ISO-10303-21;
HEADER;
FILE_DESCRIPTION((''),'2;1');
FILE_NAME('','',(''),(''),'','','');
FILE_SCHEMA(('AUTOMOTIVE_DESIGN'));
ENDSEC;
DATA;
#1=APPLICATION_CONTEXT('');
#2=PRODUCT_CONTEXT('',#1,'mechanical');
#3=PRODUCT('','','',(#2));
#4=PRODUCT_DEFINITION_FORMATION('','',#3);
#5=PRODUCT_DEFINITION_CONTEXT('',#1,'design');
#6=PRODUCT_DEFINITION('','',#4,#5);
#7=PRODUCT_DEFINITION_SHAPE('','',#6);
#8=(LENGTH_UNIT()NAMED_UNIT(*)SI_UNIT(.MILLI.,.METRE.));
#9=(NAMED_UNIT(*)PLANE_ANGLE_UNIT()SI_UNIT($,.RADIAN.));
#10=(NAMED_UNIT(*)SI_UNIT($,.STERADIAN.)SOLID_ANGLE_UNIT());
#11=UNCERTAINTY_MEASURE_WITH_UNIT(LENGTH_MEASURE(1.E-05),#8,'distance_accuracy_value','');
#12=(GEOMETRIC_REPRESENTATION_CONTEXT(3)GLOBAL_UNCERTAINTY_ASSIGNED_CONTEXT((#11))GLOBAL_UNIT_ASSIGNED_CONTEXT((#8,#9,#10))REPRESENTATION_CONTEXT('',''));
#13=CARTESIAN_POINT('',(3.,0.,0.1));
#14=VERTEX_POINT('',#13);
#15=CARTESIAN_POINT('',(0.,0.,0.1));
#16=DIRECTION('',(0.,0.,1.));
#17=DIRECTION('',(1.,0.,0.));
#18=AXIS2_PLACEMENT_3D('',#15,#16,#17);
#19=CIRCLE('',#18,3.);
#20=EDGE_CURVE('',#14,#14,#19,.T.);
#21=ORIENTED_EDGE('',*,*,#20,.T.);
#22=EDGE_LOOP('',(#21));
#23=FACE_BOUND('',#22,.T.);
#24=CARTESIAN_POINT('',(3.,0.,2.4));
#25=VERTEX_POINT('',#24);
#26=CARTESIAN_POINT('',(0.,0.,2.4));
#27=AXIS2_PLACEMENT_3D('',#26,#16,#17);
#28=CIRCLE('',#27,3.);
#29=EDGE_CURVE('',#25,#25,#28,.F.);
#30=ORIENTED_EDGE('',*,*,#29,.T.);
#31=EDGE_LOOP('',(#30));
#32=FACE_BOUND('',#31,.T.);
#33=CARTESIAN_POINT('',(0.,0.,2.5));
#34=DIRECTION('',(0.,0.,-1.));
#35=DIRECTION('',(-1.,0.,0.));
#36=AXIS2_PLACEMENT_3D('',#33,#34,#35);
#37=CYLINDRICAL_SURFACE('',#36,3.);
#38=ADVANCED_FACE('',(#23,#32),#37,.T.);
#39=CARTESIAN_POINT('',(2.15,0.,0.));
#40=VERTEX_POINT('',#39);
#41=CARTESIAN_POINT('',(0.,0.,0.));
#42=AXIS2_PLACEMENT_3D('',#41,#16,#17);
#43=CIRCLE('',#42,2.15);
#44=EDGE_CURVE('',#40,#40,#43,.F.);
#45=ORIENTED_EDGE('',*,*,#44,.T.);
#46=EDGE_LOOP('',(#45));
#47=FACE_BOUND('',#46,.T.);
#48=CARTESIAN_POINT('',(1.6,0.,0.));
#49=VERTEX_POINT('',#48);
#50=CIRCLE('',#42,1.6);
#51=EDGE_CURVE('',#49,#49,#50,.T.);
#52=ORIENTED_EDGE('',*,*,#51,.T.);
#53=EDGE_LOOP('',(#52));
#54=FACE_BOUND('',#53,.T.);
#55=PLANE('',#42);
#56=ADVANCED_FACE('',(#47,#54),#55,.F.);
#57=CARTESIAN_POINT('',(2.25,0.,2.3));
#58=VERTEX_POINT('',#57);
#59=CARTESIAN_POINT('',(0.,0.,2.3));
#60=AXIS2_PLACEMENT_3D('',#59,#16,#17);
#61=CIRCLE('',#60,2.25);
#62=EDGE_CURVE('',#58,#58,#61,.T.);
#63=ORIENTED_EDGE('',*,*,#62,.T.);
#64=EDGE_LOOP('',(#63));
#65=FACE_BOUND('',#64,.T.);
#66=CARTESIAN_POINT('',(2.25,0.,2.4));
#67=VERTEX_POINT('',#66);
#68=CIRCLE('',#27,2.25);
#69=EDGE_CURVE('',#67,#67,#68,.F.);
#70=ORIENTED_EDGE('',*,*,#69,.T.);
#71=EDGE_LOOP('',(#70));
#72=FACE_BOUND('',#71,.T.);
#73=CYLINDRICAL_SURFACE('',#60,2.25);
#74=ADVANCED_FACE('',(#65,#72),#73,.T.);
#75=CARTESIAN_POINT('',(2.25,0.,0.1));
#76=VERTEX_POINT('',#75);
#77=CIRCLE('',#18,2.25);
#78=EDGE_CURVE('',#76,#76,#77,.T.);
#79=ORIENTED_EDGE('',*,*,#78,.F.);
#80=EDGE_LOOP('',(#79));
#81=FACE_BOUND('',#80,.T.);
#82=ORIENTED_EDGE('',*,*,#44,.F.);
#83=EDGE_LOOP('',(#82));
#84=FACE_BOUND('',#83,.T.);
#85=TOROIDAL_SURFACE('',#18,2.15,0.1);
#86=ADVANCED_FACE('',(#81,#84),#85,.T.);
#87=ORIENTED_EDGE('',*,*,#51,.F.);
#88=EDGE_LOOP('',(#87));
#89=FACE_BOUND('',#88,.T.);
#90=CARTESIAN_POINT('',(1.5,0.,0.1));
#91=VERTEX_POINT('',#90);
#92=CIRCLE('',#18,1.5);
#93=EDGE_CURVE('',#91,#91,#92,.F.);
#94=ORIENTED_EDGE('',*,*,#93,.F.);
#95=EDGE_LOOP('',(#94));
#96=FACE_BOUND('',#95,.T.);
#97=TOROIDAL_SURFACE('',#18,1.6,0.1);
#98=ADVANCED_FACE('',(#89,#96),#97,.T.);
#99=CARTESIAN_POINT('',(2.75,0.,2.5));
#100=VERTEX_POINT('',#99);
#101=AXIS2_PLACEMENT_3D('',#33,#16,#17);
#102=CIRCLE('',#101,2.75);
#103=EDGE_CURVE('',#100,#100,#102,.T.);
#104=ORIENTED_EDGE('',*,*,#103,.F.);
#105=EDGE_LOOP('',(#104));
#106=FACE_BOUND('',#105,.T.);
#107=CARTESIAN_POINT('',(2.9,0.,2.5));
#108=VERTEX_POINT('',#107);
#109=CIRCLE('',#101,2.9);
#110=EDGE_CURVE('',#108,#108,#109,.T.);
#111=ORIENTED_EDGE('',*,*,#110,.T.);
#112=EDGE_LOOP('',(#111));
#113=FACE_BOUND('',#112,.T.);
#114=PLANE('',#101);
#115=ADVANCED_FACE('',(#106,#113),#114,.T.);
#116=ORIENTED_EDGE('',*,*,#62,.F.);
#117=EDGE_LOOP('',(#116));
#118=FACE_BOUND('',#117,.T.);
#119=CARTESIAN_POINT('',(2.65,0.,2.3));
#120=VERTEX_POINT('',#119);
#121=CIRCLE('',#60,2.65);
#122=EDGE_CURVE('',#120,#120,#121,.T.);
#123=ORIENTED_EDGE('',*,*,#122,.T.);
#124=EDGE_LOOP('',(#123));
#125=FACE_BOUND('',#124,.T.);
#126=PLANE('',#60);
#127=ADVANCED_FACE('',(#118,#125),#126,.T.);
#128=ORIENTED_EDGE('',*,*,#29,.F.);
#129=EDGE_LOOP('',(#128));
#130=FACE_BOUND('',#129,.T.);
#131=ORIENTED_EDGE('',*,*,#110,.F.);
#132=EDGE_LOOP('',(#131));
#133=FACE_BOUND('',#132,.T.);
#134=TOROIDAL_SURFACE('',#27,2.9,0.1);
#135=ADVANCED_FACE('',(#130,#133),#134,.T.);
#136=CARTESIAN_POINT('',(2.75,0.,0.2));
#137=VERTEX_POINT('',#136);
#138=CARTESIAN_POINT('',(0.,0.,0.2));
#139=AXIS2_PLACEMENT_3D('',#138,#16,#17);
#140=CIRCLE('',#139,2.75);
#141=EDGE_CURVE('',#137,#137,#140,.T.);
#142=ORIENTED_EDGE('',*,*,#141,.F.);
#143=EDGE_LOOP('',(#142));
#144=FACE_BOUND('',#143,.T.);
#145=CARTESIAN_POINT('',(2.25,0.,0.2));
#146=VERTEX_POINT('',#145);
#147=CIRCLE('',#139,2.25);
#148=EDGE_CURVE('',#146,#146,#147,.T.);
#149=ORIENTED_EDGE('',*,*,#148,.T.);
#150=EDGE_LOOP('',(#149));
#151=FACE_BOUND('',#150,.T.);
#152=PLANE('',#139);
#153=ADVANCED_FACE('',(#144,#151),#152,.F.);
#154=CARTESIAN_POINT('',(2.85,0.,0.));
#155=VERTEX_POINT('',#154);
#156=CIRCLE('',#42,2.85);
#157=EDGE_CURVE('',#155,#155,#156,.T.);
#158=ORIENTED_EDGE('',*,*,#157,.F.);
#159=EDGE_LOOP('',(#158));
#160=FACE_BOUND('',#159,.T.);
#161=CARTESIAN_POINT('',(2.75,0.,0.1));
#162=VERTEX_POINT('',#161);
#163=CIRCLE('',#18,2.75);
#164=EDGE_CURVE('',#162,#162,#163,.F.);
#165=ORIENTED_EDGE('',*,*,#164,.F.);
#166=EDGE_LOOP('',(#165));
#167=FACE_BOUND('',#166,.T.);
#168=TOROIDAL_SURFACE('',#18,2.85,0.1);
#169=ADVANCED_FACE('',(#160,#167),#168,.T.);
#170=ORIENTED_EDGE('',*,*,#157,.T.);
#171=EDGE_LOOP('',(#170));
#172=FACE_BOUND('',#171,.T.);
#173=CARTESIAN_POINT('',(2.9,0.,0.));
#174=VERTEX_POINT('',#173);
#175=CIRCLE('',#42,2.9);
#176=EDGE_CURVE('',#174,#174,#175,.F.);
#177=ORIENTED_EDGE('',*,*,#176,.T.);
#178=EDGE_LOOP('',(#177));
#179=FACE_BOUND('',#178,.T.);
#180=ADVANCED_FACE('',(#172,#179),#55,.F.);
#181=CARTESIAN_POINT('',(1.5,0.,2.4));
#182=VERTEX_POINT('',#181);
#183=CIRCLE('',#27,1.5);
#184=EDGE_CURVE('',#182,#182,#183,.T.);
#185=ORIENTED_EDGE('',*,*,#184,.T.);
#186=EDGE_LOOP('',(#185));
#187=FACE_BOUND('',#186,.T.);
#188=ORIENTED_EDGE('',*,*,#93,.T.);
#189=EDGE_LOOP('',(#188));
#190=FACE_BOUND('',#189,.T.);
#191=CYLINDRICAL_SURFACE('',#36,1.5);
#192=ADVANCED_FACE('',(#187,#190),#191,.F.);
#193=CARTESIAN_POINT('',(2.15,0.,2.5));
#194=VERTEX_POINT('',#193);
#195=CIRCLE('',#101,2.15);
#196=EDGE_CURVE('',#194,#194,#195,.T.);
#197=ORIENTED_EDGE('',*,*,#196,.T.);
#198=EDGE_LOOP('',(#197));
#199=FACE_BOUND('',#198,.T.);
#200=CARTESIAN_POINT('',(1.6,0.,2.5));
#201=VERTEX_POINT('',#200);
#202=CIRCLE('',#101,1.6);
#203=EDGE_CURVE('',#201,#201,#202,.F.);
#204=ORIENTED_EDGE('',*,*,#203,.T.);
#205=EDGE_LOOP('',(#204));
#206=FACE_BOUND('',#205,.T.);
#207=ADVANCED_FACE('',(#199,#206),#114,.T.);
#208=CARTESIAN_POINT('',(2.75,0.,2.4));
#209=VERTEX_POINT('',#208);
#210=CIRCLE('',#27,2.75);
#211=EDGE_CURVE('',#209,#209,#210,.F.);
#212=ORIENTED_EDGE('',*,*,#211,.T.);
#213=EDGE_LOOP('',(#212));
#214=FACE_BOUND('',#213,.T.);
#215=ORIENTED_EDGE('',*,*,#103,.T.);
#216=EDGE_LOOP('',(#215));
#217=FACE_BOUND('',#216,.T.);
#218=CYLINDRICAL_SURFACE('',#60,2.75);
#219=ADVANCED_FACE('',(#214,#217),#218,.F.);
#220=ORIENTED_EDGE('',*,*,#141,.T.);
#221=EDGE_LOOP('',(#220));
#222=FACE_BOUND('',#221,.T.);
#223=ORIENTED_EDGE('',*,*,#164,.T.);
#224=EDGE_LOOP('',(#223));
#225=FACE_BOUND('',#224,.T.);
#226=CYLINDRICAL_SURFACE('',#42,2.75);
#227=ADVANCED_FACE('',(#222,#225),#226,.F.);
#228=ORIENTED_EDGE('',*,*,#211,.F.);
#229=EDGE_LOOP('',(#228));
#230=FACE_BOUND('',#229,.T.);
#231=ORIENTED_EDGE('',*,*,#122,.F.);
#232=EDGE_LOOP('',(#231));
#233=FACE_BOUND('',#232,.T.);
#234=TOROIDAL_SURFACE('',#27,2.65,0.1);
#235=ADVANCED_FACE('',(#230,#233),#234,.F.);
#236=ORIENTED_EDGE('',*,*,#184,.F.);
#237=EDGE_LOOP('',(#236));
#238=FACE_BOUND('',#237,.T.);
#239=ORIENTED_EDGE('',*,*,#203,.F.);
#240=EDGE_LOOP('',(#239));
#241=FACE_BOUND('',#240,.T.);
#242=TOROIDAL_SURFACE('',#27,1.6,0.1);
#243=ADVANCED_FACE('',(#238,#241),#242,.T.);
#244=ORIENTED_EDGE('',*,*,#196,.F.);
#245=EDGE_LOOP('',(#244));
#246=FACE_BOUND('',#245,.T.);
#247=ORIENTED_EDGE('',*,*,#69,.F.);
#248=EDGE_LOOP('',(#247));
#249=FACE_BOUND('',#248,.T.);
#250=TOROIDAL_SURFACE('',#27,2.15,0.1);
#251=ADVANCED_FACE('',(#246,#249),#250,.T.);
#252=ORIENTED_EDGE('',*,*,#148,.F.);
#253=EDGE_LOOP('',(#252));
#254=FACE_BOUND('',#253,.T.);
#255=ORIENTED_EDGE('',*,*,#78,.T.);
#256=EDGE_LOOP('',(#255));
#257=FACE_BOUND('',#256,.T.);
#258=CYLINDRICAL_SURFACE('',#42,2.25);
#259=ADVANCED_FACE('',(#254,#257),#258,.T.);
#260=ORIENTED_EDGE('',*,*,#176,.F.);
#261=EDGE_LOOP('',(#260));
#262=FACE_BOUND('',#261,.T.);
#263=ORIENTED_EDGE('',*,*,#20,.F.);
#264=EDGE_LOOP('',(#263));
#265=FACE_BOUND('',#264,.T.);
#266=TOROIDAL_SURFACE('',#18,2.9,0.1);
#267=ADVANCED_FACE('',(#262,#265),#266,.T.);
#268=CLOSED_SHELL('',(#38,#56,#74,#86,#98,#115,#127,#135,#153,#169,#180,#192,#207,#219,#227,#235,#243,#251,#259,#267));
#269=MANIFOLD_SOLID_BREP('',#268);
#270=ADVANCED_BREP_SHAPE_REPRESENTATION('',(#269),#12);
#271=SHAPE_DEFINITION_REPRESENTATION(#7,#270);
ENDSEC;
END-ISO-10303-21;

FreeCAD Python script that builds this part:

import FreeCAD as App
import Part
import Sketcher

V = App.Vector
Q = App.Units.Quantity


def edges_at(feature, points):
    """Names of the edges that pass closest to the given points."""
    edges = feature.Shape.Edges
    near = lambda p: min(range(len(edges)), key=lambda i: edges[i].distToShape(Part.Vertex(*p))[0])
    return sorted({f"Edge{near(p) + 1}" for p in points})

doc = App.newDocument("Part")
body = doc.addObject("PartDesign::Body", "Body")

# Sketch on XY plane
sketch1 = body.newObject("Sketcher::SketchObject", "Sketch")
sketch1.AttachmentSupport = (doc.getObject("XY_Plane"), [""])
sketch1.MapMode = "FlatFace"
sketch1.addGeometry([
    Part.Circle(V(0, 0, 0), V(0, 0, 1), 3),
    Part.Circle(V(0, 0, 0), V(0, 0, 1), 1.5),
], False)
sketch1.addConstraint([
    Sketcher.Constraint("Coincident", 0, 3, -1, 1),
    Sketcher.Constraint("Coincident", 1, 3, -1, 1),
    Sketcher.Constraint("Diameter", 0, Q("6 mm")),
    Sketcher.Constraint("Diameter", 1, Q("3 mm")),
])
pad1 = body.newObject("PartDesign::Pad", "Pad")
pad1.Profile = sketch1
pad1.Length = 2.5

# Sketch on XY plane
sketch2 = body.newObject("Sketcher::SketchObject", "Sketch001")
sketch2.AttachmentSupport = (doc.getObject("XY_Plane"), [""])
sketch2.MapMode = "FlatFace"
sketch2.AttachmentOffset = App.Placement(V(0, 0, 2.5), App.Rotation())
sketch2.addGeometry([
    Part.Circle(V(0, 0, 0), V(0, 0, 1), 2.8),
    Part.Circle(V(0, 0, 0), V(0, 0, 1), 2.2),
], False)
sketch2.addConstraint([
    Sketcher.Constraint("Coincident", 0, 3, -1, 1),
    Sketcher.Constraint("Coincident", 1, 3, -1, 1),
    Sketcher.Constraint("Diameter", 0, Q("5.5 mm")),
    Sketcher.Constraint("Diameter", 1, Q("4.5 mm")),
])
pocket1 = body.newObject("PartDesign::Pocket", "Pocket")
pocket1.Profile = sketch2
pocket1.Length = 0.2

# Sketch on XY plane
sketch3 = body.newObject("Sketcher::SketchObject", "Sketch002")
sketch3.AttachmentSupport = (doc.getObject("XY_Plane"), [""])
sketch3.MapMode = "FlatFace"
sketch3.AttachmentOffset = App.Placement(V(0, 0, 0.2), App.Rotation())
sketch3.addGeometry([
    Part.Circle(V(0, 0, 0), V(0, 0, 1), 2.8),
    Part.Circle(V(0, 0, 0), V(0, 0, 1), 2.2),
], False)
sketch3.addConstraint([
    Sketcher.Constraint("Coincident", 0, 3, -1, 1),
    Sketcher.Constraint("Coincident", 1, 3, -1, 1),
    Sketcher.Constraint("Diameter", 0, Q("5.5 mm")),
    Sketcher.Constraint("Diameter", 1, Q("4.5 mm")),
])
pocket2 = body.newObject("PartDesign::Pocket", "Pocket001")
pocket2.Profile = sketch3
pocket2.Length = 0.2
doc.recompute()

fillet = body.newObject("PartDesign::Fillet", "Fillet")
fillet.Base = (pocket2, edges_at(pocket2, [
    (-2.75, 0, 2.3),
    (-2.25, 0, 2.5),
    (-2.75, 0, 0),
    (-2.25, 0, 0),
    (-3, 0, 0),
    (-3, 0, 2.5),
    (-1.5, 0, 0),
    (-1.5, 0, 2.5),
]))
fillet.Radius = 0.1

doc.recompute()
